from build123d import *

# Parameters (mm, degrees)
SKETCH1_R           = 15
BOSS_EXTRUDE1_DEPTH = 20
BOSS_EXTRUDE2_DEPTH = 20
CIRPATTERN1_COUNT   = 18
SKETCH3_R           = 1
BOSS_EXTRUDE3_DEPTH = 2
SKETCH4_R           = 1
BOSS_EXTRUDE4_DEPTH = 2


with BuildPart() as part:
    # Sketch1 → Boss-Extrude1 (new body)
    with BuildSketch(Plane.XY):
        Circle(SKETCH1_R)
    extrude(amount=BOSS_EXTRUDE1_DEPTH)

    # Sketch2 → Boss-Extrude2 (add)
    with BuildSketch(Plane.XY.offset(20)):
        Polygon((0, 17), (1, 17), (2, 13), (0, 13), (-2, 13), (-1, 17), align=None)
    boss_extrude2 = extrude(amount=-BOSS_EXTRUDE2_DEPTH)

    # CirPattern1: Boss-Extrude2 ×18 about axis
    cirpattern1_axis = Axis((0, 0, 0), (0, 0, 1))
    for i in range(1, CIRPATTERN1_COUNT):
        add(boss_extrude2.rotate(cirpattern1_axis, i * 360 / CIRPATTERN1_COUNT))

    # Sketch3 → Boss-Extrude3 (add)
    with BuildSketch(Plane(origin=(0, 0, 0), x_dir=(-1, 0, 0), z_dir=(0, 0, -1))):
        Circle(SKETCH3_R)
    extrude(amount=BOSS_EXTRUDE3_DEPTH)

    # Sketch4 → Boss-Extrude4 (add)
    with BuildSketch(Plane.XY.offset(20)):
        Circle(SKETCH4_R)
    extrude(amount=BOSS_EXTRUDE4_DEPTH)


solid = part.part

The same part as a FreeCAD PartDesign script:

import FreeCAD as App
import Part
import Sketcher

doc = App.newDocument("Part")
params = doc.addObject("Spreadsheet::Sheet", "Params")
for row, (alias, value) in enumerate([
    ("sketch1_diameter", "30 mm"),
    ("pad1_length", "20 mm"),
    ("sketch2_width", "2 mm"),
    ("sketch2_width2", "4 mm"),
    ("pad2_length", "20 mm"),
    ("sketch3_diameter", "2 mm"),
    ("pad3_length", "2 mm"),
    ("sketch4_diameter", "2 mm"),
    ("pad4_length", "2 mm"),
], start=1):
    params.set(f"A{row}", alias)
    params.set(f"B{row}", "=" + value)
    params.setAlias(f"B{row}", alias)

body = doc.addObject("PartDesign::Body", "Body")

sketch1 = body.newObject("Sketcher::SketchObject", "Sketch")
sketch1.AttachmentSupport = (doc.getObject("XY_Plane"), [""])
sketch1.MapMode = "FlatFace"
sketch1.addGeometry(Part.Circle(App.Vector(0, 0, 0), App.Vector(0, 0, 1), 15), False)
sketch1.addConstraint([
    Sketcher.Constraint("Coincident", 0, 3, -1, 1),
    Sketcher.Constraint("Diameter", 0, 30.0),
])
sketch1.setExpression("Constraints[1]", "Params.sketch1_diameter")
pad1 = body.newObject("PartDesign::Pad", "Pad")
pad1.Profile = sketch1
pad1.setExpression("Length", "Params.pad1_length")

sketch2 = body.newObject("Sketcher::SketchObject", "Sketch001")
sketch2.AttachmentSupport = (doc.getObject("XY_Plane"), [""])
sketch2.MapMode = "FlatFace"
sketch2.AttachmentOffset = App.Placement(App.Vector(0, 0, 20), App.Rotation())
sketch2.addGeometry([
    Part.LineSegment(App.Vector(1, 17, 0), App.Vector(-1, 17, 0)),
    Part.LineSegment(App.Vector(-1, 17, 0), App.Vector(-2, 13, 0)),
    Part.LineSegment(App.Vector(-2, 13, 0), App.Vector(2, 13, 0)),
    Part.LineSegment(App.Vector(2, 13, 0), App.Vector(1, 17, 0)),
], False)
sketch2.addConstraint([
    Sketcher.Constraint("Coincident", 0, 2, 1, 1),
    Sketcher.Constraint("Coincident", 1, 2, 2, 1),
    Sketcher.Constraint("Coincident", 2, 2, 3, 1),
    Sketcher.Constraint("Coincident", 3, 2, 0, 1),
    Sketcher.Constraint("Horizontal", 0),
    Sketcher.Constraint("Horizontal", 2),
    Sketcher.Constraint("Equal", 1, 3),
    Sketcher.Constraint("DistanceX", 0, 2, 0, 1, 2.0),
    Sketcher.Constraint("DistanceX", 2, 1, 2, 2, 4.0),
    Sketcher.Constraint("DistanceX", 0, 2, -1, 1, 1.0),
    Sketcher.Constraint("DistanceY", -1, 1, 0, 2, 17.0),
    Sketcher.Constraint("DistanceY", -1, 1, 1, 2, 13.0),
])
sketch2.setExpression("Constraints[7]", "Params.sketch2_width")
sketch2.setExpression("Constraints[8]", "Params.sketch2_width2")
pad2 = body.newObject("PartDesign::Pad", "Pad001")
pad2.Profile = sketch2
pad2.setExpression("Length", "Params.pad2_length")
pad2.Reversed = True
doc.recompute()

polarpattern = body.newObject("PartDesign::PolarPattern", "PolarPattern")
polarpattern.Originals = [pad2]
polarpattern.Axis = (doc.getObject("Z_Axis"), [""])
polarpattern.Angle = 360
polarpattern.Occurrences = 18
body.Tip = polarpattern

sketch3 = body.newObject("Sketcher::SketchObject", "Sketch002")
sketch3.AttachmentSupport = (doc.getObject("XY_Plane"), [""])
sketch3.MapMode = "FlatFace"
sketch3.addGeometry(Part.Circle(App.Vector(0, 0, 0), App.Vector(0, 0, 1), 1), False)
sketch3.addConstraint([
    Sketcher.Constraint("Coincident", 0, 3, -1, 1),
    Sketcher.Constraint("Diameter", 0, 2.0),
])
sketch3.setExpression("Constraints[1]", "Params.sketch3_diameter")
pad3 = body.newObject("PartDesign::Pad", "Pad002")
pad3.Profile = sketch3
pad3.setExpression("Length", "Params.pad3_length")
pad3.Reversed = True

sketch4 = body.newObject("Sketcher::SketchObject", "Sketch003")
sketch4.AttachmentSupport = (doc.getObject("XY_Plane"), [""])
sketch4.MapMode = "FlatFace"
sketch4.AttachmentOffset = App.Placement(App.Vector(0, 0, 20), App.Rotation())
sketch4.addGeometry(Part.Circle(App.Vector(0, 0, 0), App.Vector(0, 0, 1), 1), False)
sketch4.addConstraint([
    Sketcher.Constraint("Coincident", 0, 3, -1, 1),
    Sketcher.Constraint("Diameter", 0, 2.0),
])
sketch4.setExpression("Constraints[1]", "Params.sketch4_diameter")
pad4 = body.newObject("PartDesign::Pad", "Pad003")
pad4.Profile = sketch4
pad4.setExpression("Length", "Params.pad4_length")

doc.recompute()
